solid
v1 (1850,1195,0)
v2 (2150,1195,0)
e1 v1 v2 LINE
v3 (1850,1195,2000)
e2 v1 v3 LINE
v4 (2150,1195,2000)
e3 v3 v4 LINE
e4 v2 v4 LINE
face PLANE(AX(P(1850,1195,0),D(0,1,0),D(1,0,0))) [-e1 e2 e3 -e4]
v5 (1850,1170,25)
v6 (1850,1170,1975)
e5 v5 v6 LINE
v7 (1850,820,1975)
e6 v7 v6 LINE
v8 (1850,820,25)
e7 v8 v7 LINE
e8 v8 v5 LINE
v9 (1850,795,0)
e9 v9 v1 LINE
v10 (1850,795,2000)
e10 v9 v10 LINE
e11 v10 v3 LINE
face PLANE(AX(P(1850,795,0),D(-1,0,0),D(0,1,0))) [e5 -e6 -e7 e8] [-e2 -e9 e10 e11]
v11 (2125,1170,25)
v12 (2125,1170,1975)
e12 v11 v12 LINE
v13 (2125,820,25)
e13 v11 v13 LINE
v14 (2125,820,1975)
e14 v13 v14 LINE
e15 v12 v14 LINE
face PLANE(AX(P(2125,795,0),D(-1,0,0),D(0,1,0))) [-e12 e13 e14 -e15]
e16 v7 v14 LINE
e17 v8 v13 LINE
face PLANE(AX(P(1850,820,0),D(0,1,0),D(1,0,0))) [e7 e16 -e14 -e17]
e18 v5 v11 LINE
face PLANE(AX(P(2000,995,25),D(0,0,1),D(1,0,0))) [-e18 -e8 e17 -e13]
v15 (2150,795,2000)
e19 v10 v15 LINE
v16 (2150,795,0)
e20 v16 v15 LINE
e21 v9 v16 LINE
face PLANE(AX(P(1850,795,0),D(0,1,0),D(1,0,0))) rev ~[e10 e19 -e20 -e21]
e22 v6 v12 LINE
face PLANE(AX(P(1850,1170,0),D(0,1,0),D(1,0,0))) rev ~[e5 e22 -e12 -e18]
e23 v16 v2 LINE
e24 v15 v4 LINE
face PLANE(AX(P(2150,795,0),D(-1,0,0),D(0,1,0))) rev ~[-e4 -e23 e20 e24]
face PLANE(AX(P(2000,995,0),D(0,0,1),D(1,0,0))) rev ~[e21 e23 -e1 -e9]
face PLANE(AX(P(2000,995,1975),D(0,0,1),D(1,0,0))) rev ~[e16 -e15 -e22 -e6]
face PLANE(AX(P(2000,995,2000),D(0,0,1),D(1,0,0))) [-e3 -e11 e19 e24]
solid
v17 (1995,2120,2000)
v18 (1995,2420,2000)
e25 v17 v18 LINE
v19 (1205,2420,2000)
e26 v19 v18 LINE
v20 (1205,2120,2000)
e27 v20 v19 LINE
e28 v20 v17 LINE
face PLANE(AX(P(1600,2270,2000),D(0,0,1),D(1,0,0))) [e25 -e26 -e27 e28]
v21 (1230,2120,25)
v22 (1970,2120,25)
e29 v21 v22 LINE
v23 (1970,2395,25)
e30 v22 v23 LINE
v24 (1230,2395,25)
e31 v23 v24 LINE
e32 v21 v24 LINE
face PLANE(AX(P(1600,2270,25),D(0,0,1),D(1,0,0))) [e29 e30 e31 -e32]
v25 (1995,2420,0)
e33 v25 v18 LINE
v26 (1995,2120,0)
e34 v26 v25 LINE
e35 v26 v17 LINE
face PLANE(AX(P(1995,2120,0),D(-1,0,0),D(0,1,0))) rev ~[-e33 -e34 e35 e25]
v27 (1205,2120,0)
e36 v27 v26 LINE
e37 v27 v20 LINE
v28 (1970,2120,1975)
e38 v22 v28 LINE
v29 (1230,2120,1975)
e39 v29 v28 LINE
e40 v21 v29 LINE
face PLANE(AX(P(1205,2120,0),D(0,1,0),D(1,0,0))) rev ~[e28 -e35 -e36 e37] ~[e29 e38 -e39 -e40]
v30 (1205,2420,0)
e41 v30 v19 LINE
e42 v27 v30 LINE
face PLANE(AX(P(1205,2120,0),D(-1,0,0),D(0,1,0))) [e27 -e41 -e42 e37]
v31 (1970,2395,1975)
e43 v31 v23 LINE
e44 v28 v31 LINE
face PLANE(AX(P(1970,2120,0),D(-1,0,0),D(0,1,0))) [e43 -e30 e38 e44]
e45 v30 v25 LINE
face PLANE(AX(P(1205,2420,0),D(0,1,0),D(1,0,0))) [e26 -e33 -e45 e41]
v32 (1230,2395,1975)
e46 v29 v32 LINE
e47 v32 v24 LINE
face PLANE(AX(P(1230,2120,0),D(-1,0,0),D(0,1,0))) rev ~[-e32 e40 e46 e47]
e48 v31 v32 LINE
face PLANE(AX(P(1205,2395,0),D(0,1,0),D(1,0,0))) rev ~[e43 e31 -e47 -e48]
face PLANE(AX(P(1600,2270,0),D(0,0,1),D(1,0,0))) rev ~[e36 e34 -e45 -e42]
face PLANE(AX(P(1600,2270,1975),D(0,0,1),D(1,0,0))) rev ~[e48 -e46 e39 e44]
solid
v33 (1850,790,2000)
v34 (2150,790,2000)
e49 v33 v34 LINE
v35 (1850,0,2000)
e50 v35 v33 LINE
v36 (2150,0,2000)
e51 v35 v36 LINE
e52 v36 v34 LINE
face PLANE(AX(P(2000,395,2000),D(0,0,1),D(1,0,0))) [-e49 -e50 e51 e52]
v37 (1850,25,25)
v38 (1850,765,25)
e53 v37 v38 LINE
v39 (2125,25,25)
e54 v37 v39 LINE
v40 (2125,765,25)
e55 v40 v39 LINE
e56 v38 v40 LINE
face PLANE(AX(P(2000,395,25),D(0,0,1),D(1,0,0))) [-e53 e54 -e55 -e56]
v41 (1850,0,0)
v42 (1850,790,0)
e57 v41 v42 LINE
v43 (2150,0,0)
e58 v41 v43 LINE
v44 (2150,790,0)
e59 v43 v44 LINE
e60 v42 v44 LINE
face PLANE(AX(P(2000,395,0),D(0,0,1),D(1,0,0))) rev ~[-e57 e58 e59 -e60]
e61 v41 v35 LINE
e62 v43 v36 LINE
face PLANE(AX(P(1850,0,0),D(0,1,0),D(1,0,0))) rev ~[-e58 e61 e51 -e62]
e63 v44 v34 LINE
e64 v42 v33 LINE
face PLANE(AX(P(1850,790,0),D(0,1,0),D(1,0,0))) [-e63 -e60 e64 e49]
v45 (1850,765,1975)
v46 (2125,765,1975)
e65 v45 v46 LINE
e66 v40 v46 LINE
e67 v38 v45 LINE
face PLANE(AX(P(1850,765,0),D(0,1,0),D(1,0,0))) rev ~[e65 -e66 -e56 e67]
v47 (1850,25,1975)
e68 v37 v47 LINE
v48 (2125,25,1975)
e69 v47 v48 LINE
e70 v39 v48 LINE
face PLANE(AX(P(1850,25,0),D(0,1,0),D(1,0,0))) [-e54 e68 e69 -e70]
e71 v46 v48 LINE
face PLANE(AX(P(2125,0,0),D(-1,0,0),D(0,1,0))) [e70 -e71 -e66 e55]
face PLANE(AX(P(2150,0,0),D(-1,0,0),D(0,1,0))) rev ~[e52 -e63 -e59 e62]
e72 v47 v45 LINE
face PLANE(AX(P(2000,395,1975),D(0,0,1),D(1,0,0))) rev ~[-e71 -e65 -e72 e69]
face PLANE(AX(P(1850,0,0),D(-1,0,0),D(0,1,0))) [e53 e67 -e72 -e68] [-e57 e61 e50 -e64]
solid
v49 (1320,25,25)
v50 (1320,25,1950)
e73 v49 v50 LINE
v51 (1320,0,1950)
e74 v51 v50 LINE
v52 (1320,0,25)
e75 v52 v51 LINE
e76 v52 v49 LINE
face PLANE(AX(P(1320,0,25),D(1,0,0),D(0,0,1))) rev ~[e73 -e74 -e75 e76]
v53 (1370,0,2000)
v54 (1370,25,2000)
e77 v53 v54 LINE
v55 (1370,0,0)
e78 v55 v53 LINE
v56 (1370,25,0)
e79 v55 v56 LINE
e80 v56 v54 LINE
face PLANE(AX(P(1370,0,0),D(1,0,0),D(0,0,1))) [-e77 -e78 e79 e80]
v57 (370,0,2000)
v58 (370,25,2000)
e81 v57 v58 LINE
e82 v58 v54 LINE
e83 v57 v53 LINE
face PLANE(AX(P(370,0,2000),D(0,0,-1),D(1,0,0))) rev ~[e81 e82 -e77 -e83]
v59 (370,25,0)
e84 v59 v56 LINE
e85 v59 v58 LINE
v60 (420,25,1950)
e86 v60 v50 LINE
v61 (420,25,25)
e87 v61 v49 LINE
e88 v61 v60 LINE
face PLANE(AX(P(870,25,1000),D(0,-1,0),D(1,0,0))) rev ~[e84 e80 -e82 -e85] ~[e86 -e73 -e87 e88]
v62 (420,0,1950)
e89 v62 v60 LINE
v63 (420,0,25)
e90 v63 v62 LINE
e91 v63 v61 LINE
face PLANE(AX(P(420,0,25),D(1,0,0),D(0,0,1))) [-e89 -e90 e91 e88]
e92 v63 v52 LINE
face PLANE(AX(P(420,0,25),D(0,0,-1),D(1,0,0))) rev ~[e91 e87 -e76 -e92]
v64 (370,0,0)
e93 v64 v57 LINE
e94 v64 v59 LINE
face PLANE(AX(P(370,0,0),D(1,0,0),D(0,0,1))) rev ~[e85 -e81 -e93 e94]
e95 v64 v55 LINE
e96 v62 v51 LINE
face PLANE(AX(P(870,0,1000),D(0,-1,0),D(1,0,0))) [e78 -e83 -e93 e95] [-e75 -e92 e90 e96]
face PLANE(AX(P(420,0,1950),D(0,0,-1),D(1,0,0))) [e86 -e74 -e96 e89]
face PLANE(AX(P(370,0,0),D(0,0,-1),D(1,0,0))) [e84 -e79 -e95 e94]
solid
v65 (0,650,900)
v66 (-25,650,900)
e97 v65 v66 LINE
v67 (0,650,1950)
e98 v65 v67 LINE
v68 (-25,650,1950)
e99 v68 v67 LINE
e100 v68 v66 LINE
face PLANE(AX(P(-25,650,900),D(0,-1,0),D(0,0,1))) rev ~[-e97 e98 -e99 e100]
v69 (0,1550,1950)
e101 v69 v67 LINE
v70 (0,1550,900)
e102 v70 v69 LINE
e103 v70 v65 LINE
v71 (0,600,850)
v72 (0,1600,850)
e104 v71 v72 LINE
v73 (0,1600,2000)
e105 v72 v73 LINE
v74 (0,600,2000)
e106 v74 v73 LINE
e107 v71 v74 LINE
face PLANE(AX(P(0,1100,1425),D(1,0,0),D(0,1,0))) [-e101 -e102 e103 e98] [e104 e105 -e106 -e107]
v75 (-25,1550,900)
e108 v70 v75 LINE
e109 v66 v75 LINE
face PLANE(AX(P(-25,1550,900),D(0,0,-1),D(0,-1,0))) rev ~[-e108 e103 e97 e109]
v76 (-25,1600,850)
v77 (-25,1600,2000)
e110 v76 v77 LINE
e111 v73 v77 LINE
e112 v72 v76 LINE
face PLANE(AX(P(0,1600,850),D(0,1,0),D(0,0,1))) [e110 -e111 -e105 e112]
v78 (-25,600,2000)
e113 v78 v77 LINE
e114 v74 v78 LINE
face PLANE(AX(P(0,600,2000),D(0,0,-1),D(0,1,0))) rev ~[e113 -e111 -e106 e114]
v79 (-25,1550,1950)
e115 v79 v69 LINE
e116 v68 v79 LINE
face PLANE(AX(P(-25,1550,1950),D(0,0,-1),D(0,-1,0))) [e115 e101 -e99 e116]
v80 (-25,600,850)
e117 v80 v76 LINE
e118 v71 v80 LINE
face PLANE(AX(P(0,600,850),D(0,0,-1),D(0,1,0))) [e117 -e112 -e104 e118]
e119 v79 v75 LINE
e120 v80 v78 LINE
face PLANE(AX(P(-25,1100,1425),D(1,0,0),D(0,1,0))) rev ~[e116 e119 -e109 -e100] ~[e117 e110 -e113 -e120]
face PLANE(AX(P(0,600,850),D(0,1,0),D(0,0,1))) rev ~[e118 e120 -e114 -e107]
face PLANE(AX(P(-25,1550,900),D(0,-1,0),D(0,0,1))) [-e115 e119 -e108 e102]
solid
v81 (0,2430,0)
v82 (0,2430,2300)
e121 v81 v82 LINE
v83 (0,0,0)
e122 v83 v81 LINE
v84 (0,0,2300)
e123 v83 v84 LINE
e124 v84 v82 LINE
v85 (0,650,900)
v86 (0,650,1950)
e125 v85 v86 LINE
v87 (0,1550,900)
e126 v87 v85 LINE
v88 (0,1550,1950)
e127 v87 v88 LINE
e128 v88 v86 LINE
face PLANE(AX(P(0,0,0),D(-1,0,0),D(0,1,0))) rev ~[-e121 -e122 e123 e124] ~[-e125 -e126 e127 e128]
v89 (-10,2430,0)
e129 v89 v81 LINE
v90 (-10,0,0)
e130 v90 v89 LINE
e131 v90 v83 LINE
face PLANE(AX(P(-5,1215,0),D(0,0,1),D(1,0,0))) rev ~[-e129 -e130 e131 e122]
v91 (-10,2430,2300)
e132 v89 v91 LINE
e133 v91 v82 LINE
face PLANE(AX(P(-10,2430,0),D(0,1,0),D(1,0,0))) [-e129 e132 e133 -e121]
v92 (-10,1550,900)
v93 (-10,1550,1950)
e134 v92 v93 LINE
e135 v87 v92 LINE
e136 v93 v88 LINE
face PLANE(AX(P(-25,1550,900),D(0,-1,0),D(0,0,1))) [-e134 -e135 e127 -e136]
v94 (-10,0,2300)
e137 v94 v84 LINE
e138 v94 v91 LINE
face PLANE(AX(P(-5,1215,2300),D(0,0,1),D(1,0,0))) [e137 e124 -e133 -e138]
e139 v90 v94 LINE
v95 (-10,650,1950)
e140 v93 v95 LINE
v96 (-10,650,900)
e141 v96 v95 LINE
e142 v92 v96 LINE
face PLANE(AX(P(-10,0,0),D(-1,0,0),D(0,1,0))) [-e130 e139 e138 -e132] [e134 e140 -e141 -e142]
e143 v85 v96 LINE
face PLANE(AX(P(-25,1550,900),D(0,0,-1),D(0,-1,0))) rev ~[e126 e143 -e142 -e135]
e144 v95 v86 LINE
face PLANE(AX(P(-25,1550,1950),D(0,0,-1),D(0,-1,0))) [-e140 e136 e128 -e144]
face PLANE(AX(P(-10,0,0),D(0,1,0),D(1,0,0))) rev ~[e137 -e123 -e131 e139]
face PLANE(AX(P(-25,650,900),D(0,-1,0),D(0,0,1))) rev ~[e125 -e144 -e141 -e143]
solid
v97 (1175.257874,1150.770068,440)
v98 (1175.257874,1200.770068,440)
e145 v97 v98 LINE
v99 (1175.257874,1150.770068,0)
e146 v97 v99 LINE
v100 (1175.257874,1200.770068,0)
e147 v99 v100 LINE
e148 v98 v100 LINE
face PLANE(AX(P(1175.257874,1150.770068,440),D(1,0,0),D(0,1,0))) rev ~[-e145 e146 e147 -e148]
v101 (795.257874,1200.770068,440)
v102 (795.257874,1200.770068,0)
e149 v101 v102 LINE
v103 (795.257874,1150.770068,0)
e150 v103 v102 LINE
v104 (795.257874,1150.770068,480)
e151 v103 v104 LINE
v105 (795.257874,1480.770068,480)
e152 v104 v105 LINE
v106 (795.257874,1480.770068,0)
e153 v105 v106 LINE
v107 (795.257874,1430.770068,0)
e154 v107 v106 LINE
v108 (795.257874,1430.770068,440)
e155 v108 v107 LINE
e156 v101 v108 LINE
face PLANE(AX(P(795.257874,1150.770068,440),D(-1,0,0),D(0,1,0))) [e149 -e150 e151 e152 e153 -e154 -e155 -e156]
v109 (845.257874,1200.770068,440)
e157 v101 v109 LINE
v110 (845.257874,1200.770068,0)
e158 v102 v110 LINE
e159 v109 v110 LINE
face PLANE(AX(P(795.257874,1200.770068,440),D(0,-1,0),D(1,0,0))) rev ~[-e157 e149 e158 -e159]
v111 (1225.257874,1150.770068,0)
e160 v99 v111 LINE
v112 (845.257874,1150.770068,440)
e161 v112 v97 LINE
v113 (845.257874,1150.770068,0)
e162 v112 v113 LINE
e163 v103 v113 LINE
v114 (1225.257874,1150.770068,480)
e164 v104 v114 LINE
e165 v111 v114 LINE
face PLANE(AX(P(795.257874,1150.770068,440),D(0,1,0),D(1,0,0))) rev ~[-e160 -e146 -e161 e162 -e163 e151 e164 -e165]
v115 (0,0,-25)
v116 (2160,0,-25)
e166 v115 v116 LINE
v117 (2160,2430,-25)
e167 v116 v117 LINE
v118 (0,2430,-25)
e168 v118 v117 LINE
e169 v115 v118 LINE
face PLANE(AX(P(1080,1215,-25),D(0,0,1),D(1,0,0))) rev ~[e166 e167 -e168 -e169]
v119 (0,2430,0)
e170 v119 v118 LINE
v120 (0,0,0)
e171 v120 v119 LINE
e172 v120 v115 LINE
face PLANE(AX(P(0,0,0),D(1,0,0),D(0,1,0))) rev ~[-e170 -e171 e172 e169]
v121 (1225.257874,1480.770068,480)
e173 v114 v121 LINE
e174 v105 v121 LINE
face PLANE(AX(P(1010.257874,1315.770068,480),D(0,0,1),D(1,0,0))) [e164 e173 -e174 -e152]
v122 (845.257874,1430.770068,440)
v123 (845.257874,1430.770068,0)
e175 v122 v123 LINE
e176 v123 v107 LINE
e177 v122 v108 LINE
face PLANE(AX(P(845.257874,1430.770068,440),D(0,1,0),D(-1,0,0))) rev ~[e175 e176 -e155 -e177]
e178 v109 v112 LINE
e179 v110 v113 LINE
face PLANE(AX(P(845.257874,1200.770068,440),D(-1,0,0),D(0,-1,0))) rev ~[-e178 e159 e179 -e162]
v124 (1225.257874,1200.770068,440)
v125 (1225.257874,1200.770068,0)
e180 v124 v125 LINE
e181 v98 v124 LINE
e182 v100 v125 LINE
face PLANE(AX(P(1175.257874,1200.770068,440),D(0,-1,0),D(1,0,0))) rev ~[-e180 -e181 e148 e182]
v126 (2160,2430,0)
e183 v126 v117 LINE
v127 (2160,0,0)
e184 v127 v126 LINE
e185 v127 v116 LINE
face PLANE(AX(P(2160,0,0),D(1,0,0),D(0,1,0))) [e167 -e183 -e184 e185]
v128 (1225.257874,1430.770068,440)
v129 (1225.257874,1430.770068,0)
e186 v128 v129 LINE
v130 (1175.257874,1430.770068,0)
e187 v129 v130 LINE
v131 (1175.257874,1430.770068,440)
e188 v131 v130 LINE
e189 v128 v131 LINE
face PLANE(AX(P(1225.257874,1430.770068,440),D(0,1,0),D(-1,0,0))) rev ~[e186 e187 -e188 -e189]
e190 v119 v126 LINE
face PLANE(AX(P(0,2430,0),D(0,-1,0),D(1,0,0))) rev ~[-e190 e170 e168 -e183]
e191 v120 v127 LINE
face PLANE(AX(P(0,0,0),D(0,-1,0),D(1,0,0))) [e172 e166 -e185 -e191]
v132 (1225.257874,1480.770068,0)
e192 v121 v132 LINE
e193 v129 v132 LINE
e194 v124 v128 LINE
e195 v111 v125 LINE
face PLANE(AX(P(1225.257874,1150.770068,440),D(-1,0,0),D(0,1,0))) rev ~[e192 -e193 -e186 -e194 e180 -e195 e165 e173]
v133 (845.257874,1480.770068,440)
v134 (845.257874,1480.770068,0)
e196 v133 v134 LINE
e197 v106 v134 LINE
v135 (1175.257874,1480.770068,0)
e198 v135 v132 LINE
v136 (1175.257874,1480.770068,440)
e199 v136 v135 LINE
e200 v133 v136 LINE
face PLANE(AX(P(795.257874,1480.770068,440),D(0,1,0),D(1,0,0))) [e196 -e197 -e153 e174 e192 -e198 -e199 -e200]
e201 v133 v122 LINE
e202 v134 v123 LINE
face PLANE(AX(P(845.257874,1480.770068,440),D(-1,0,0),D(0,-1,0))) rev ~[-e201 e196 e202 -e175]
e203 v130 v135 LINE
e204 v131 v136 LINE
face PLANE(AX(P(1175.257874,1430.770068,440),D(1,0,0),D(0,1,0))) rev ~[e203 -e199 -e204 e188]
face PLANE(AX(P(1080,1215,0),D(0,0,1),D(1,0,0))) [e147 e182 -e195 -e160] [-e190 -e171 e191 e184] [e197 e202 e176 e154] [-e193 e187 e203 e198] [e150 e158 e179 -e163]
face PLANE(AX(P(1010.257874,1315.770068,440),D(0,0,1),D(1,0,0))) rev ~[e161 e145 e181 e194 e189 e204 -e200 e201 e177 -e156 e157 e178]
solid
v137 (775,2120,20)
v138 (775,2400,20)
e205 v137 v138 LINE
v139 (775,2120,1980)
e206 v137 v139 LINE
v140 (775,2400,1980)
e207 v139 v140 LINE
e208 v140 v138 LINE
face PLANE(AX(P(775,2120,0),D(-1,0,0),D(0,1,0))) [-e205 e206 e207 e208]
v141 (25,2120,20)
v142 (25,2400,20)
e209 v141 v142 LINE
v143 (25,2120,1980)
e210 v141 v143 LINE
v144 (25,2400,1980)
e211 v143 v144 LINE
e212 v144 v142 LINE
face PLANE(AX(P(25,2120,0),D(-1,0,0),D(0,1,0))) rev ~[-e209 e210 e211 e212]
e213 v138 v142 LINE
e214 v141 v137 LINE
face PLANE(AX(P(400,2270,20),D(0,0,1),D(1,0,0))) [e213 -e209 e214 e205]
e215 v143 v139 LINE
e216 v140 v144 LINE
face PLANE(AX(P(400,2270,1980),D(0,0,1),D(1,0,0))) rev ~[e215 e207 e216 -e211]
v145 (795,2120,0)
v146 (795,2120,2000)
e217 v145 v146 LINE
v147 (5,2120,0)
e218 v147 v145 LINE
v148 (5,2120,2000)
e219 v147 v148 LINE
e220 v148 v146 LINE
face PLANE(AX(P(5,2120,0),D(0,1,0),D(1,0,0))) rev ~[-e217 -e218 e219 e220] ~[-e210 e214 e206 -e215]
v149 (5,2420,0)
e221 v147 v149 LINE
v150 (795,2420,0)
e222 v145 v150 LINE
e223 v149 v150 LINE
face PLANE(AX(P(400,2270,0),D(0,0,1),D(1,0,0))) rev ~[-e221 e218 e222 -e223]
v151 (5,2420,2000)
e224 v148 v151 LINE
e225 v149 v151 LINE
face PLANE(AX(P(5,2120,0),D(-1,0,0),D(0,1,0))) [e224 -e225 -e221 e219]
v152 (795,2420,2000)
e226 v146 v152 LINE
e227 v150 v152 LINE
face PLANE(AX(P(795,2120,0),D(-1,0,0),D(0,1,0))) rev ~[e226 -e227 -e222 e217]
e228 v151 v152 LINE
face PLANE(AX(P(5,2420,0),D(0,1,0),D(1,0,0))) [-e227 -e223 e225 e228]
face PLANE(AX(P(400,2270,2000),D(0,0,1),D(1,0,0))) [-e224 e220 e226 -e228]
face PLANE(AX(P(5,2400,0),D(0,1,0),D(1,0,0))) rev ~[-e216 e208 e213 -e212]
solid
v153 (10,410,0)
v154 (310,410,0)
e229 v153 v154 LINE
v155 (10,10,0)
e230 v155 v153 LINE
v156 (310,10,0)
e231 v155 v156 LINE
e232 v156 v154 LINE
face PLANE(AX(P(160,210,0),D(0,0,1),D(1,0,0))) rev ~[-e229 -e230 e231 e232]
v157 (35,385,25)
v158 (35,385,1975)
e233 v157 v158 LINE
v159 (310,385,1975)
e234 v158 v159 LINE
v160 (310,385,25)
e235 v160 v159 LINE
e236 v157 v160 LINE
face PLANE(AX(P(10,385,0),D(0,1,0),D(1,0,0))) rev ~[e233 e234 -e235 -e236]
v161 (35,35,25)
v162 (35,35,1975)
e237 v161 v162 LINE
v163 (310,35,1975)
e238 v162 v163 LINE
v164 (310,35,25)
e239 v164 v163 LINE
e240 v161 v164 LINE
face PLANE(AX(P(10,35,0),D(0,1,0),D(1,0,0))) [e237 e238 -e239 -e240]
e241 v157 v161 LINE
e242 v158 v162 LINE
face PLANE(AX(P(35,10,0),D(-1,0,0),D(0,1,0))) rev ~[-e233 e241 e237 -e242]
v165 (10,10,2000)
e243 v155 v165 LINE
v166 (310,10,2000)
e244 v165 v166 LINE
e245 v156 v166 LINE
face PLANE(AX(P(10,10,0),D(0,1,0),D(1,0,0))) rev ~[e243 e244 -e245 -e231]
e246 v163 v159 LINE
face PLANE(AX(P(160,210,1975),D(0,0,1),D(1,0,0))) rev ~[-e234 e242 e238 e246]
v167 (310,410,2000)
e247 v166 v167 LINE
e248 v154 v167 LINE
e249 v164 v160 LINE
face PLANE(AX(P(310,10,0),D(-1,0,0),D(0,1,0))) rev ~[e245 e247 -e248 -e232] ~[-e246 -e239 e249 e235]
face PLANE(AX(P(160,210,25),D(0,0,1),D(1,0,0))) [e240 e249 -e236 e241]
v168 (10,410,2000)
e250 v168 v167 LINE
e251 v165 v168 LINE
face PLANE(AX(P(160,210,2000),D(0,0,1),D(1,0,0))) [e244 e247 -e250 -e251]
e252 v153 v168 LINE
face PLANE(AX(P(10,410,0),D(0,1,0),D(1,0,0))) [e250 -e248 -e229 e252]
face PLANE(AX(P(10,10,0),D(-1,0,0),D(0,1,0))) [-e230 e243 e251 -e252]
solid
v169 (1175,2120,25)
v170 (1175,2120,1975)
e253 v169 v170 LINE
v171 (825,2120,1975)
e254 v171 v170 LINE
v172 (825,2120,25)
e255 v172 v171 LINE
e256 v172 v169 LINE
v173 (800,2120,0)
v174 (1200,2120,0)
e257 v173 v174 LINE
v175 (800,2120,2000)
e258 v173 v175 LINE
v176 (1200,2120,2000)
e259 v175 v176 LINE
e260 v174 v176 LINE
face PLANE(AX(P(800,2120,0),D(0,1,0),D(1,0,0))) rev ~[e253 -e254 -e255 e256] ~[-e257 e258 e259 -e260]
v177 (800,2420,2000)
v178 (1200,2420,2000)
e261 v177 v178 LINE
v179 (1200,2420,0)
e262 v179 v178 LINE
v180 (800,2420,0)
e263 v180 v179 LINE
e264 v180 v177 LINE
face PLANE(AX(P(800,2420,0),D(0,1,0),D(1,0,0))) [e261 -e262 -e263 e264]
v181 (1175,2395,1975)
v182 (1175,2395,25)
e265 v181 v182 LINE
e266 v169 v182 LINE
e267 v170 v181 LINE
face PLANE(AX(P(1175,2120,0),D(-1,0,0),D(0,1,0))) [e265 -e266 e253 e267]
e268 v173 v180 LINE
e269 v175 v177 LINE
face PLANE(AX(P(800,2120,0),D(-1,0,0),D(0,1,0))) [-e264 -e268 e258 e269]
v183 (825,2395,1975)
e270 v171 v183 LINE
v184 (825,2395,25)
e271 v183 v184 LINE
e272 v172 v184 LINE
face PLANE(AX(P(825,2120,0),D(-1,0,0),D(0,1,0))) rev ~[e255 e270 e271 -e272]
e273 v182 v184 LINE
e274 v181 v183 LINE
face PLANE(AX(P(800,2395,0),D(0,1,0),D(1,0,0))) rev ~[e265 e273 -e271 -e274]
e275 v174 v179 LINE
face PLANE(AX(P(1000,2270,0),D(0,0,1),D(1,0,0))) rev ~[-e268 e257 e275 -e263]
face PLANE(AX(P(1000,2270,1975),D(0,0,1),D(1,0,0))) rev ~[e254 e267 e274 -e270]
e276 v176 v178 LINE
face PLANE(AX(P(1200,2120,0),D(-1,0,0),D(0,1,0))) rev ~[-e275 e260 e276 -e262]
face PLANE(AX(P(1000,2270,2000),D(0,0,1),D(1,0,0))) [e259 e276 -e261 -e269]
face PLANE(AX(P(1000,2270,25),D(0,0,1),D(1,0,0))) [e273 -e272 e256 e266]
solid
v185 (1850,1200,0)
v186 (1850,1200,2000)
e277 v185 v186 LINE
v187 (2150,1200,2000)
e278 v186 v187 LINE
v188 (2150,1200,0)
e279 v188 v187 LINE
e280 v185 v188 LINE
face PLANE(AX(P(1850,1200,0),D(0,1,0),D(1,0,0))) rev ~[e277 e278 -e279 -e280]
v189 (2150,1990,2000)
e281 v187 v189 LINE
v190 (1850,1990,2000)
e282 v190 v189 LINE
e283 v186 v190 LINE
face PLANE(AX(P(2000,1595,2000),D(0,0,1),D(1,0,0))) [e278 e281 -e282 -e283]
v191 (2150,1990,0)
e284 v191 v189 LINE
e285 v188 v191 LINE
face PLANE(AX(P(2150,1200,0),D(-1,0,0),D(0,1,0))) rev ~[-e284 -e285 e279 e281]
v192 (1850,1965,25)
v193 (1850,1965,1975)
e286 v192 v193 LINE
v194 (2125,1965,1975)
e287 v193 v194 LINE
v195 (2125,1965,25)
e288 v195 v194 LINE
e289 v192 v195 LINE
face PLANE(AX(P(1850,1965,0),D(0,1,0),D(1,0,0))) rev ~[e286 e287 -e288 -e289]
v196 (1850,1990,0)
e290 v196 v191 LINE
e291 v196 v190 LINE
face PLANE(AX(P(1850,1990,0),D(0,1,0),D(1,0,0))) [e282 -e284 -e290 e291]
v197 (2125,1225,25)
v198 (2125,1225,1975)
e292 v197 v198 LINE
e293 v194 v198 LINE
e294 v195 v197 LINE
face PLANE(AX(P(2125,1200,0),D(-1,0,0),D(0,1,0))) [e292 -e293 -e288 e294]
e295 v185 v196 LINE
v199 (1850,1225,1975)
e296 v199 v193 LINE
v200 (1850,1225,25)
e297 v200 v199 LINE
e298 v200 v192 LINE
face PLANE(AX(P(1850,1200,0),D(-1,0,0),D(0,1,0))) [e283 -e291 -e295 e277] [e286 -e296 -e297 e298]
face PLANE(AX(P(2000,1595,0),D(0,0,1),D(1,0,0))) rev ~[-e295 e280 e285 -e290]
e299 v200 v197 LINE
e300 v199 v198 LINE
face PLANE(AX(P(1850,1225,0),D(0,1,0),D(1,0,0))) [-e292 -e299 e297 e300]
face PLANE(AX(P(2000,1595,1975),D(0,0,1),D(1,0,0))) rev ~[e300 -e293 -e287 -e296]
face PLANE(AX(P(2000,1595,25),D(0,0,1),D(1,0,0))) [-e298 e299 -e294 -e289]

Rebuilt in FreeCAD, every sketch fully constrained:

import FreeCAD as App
import Part
import Sketcher

V = App.Vector
Q = App.Units.Quantity


def faces_at(feature, points):
    """Names of the faces that lie closest to the given points."""
    faces = feature.Shape.Faces
    near = lambda p: min(range(len(faces)), key=lambda i: faces[i].distToShape(Part.Vertex(*p))[0])
    return sorted({f"Face{near(p) + 1}" for p in points})

doc = App.newDocument("Part")
body = doc.addObject("PartDesign::Body", "Body")

# Sketch on XY plane
sketch1 = body.newObject("Sketcher::SketchObject", "Sketch")
sketch1.AttachmentSupport = (doc.getObject("XY_Plane"), [""])
sketch1.MapMode = "FlatFace"
sketch1.addGeometry([
    Part.LineSegment(V(5, 2420, 0), V(5, 2120, 0)),
    Part.LineSegment(V(5, 2120, 0), V(795, 2120, 0)),
    Part.LineSegment(V(795, 2120, 0), V(795, 2420, 0)),
    Part.LineSegment(V(795, 2420, 0), V(5, 2420, 0)),
], False)
sketch1.addConstraint([
    Sketcher.Constraint("Coincident", 0, 2, 1, 1),
    Sketcher.Constraint("Coincident", 1, 2, 2, 1),
    Sketcher.Constraint("Coincident", 2, 2, 3, 1),
    Sketcher.Constraint("Coincident", 3, 2, 0, 1),
    Sketcher.Constraint("Vertical", 0),
    Sketcher.Constraint("Horizontal", 1),
    Sketcher.Constraint("Vertical", 2),
    Sketcher.Constraint("Horizontal", 3),
    Sketcher.Constraint("DistanceX", 1, 1, 1, 2, Q("790 mm")),
    Sketcher.Constraint("DistanceY", 0, 2, 0, 1, Q("300 mm")),
    Sketcher.Constraint("DistanceX", -1, 1, 0, 2, Q("5 mm")),
    Sketcher.Constraint("DistanceY", -1, 1, 0, 2, Q("2120 mm")),
])
pad1 = body.newObject("PartDesign::Pad", "Pad")
pad1.Profile = sketch1
pad1.Length = 2000
doc.recompute()

thickness = body.newObject("PartDesign::Thickness", "Thickness")
thickness.Base = (pad1, faces_at(pad1, [(400, 2120, 1000)]))
thickness.Value = 20
thickness.Reversed = True
thickness.Join = "Arc"
body2 = doc.addObject("PartDesign::Body", "Body001")

# Sketch on XY plane
sketch2 = body2.newObject("Sketcher::SketchObject", "Sketch001")
sketch2.AttachmentSupport = (doc.getObject("XY_Plane001"), [""])
sketch2.MapMode = "FlatFace"
sketch2.addGeometry([
    Part.LineSegment(V(800, 2420, 0), V(800, 2120, 0)),
    Part.LineSegment(V(800, 2120, 0), V(1200, 2120, 0)),
    Part.LineSegment(V(1200, 2120, 0), V(1200, 2420, 0)),
    Part.LineSegment(V(1200, 2420, 0), V(800, 2420, 0)),
], False)
sketch2.addConstraint([
    Sketcher.Constraint("Coincident", 0, 2, 1, 1),
    Sketcher.Constraint("Coincident", 1, 2, 2, 1),
    Sketcher.Constraint("Coincident", 2, 2, 3, 1),
    Sketcher.Constraint("Coincident", 3, 2, 0, 1),
    Sketcher.Constraint("Vertical", 0),
    Sketcher.Constraint("Horizontal", 1),
    Sketcher.Constraint("Vertical", 2),
    Sketcher.Constraint("Horizontal", 3),
    Sketcher.Constraint("DistanceX", 1, 1, 1, 2, Q("400 mm")),
    Sketcher.Constraint("DistanceY", 0, 2, 0, 1, Q("300 mm")),
    Sketcher.Constraint("DistanceX", -1, 1, 0, 2, Q("800 mm")),
    Sketcher.Constraint("DistanceY", -1, 1, 0, 2, Q("2120 mm")),
])
pad2 = body2.newObject("PartDesign::Pad", "Pad001")
pad2.Profile = sketch2
pad2.Length = 2000
doc.recompute()

thickness2 = body2.newObject("PartDesign::Thickness", "Thickness001")
thickness2.Base = (pad2, faces_at(pad2, [(1000, 2120, 1000)]))
thickness2.Value = 25
thickness2.Reversed = True
thickness2.Join = "Arc"
body3 = doc.addObject("PartDesign::Body", "Body002")

# Sketch on XY plane
sketch3 = body3.newObject("Sketcher::SketchObject", "Sketch002")
sketch3.AttachmentSupport = (doc.getObject("XY_Plane002"), [""])
sketch3.MapMode = "FlatFace"
sketch3.addGeometry([
    Part.LineSegment(V(1850, 1990, 0), V(1850, 1200, 0)),
    Part.LineSegment(V(1850, 1200, 0), V(2150, 1200, 0)),
    Part.LineSegment(V(2150, 1200, 0), V(2150, 1990, 0)),
    Part.LineSegment(V(2150, 1990, 0), V(1850, 1990, 0)),
], False)
sketch3.addConstraint([
    Sketcher.Constraint("Coincident", 0, 2, 1, 1),
    Sketcher.Constraint("Coincident", 1, 2, 2, 1),
    Sketcher.Constraint("Coincident", 2, 2, 3, 1),
    Sketcher.Constraint("Coincident", 3, 2, 0, 1),
    Sketcher.Constraint("Vertical", 0),
    Sketcher.Constraint("Horizontal", 1),
    Sketcher.Constraint("Vertical", 2),
    Sketcher.Constraint("Horizontal", 3),
    Sketcher.Constraint("DistanceX", 1, 1, 1, 2, Q("300 mm")),
    Sketcher.Constraint("DistanceY", 0, 2, 0, 1, Q("790 mm")),
    Sketcher.Constraint("DistanceX", -1, 1, 0, 2, Q("1850 mm")),
    Sketcher.Constraint("DistanceY", -1, 1, 0, 2, Q("1200 mm")),
])
pad3 = body3.newObject("PartDesign::Pad", "Pad002")
pad3.Profile = sketch3
pad3.Length = 2000
doc.recompute()

thickness3 = body3.newObject("PartDesign::Thickness", "Thickness002")
thickness3.Base = (pad3, faces_at(pad3, [(1850, 1595, 1000)]))
thickness3.Value = 25
thickness3.Reversed = True
thickness3.Join = "Arc"
body4 = doc.addObject("PartDesign::Body", "Body003")

# Sketch on XY plane
sketch4 = body4.newObject("Sketcher::SketchObject", "Sketch003")
sketch4.AttachmentSupport = (doc.getObject("XY_Plane003"), [""])
sketch4.MapMode = "FlatFace"
sketch4.addGeometry([
    Part.LineSegment(V(1850, 1195, 0), V(1850, 795, 0)),
    Part.LineSegment(V(1850, 795, 0), V(2150, 795, 0)),
    Part.LineSegment(V(2150, 795, 0), V(2150, 1195, 0)),
    Part.LineSegment(V(2150, 1195, 0), V(1850, 1195, 0)),
], False)
sketch4.addConstraint([
    Sketcher.Constraint("Coincident", 0, 2, 1, 1),
    Sketcher.Constraint("Coincident", 1, 2, 2, 1),
    Sketcher.Constraint("Coincident", 2, 2, 3, 1),
    Sketcher.Constraint("Coincident", 3, 2, 0, 1),
    Sketcher.Constraint("Vertical", 0),
    Sketcher.Constraint("Horizontal", 1),
    Sketcher.Constraint("Vertical", 2),
    Sketcher.Constraint("Horizontal", 3),
    Sketcher.Constraint("DistanceX", 1, 1, 1, 2, Q("300 mm")),
    Sketcher.Constraint("DistanceY", 0, 2, 0, 1, Q("400 mm")),
    Sketcher.Constraint("DistanceX", -1, 1, 0, 2, Q("1850 mm")),
    Sketcher.Constraint("DistanceY", -1, 1, 0, 2, Q("795 mm")),
])
pad4 = body4.newObject("PartDesign::Pad", "Pad003")
pad4.Profile = sketch4
pad4.Length = 2000
doc.recompute()

thickness4 = body4.newObject("PartDesign::Thickness", "Thickness003")
thickness4.Base = (pad4, faces_at(pad4, [(1850, 995, 1000)]))
thickness4.Value = 25
thickness4.Reversed = True
thickness4.Join = "Arc"
body5 = doc.addObject("PartDesign::Body", "Body004")

# Sketch on XY plane
sketch5 = body5.newObject("Sketcher::SketchObject", "Sketch004")
sketch5.AttachmentSupport = (doc.getObject("XY_Plane004"), [""])
sketch5.MapMode = "FlatFace"
sketch5.addGeometry([
    Part.LineSegment(V(1850, 790, 0), V(1850, 0, 0)),
    Part.LineSegment(V(1850, 0, 0), V(2150, 0, 0)),
    Part.LineSegment(V(2150, 0, 0), V(2150, 790, 0)),
    Part.LineSegment(V(2150, 790, 0), V(1850, 790, 0)),
], False)
sketch5.addConstraint([
    Sketcher.Constraint("Coincident", 0, 2, 1, 1),
    Sketcher.Constraint("Coincident", 1, 2, 2, 1),
    Sketcher.Constraint("Coincident", 2, 2, 3, 1),
    Sketcher.Constraint("Coincident", 3, 2, 0, 1),
    Sketcher.Constraint("Vertical", 0),
    Sketcher.Constraint("Horizontal", 1),
    Sketcher.Constraint("Vertical", 2),
    Sketcher.Constraint("Horizontal", 3),
    Sketcher.Constraint("PointOnObject", 0, 2, -1),
    Sketcher.Constraint("DistanceX", 1, 1, 1, 2, Q("300 mm")),
    Sketcher.Constraint("DistanceY", 0, 2, 0, 1, Q("790 mm")),
    Sketcher.Constraint("DistanceX", -1, 1, 0, 2, Q("1850 mm")),
])
pad5 = body5.newObject("PartDesign::Pad", "Pad004")
pad5.Profile = sketch5
pad5.Length = 2000
doc.recompute()

thickness5 = body5.newObject("PartDesign::Thickness", "Thickness004")
thickness5.Base = (pad5, faces_at(pad5, [(1850, 395, 1000)]))
thickness5.Value = 25
thickness5.Reversed = True
thickness5.Join = "Arc"
body6 = doc.addObject("PartDesign::Body", "Body005")

# Sketch on XY plane
sketch6 = body6.newObject("Sketcher::SketchObject", "Sketch005")
sketch6.AttachmentSupport = (doc.getObject("XY_Plane005"), [""])
sketch6.MapMode = "FlatFace"
sketch6.addGeometry([
    Part.LineSegment(V(10, 410, 0), V(10, 10, 0)),
    Part.LineSegment(V(10, 10, 0), V(310, 10, 0)),
    Part.LineSegment(V(310, 10, 0), V(310, 410, 0)),
    Part.LineSegment(V(310, 410, 0), V(10, 410, 0)),
], False)
sketch6.addConstraint([
    Sketcher.Constraint("Coincident", 0, 2, 1, 1),
    Sketcher.Constraint("Coincident", 1, 2, 2, 1),
    Sketcher.Constraint("Coincident", 2, 2, 3, 1),
    Sketcher.Constraint("Coincident", 3, 2, 0, 1),
    Sketcher.Constraint("Vertical", 0),
    Sketcher.Constraint("Horizontal", 1),
    Sketcher.Constraint("Vertical", 2),
    Sketcher.Constraint("Horizontal", 3),
    Sketcher.Constraint("DistanceX", 1, 1, 1, 2, Q("300 mm")),
    Sketcher.Constraint("DistanceY", 0, 2, 0, 1, Q("400 mm")),
    Sketcher.Constraint("DistanceX", -1, 1, 0, 2, Q("10 mm")),
    Sketcher.Constraint("DistanceY", -1, 1, 0, 2, Q("10 mm")),
])
pad6 = body6.newObject("PartDesign::Pad", "Pad005")
pad6.Profile = sketch6
pad6.Length = 2000
doc.recompute()

thickness6 = body6.newObject("PartDesign::Thickness", "Thickness005")
thickness6.Base = (pad6, faces_at(pad6, [(310, 210, 1000)]))
thickness6.Value = 25
thickness6.Reversed = True
thickness6.Join = "Arc"
body7 = doc.addObject("PartDesign::Body", "Body006")

# Sketch on XY plane
sketch7 = body7.newObject("Sketcher::SketchObject", "Sketch006")
sketch7.AttachmentSupport = (doc.getObject("XY_Plane006"), [""])
sketch7.MapMode = "FlatFace"
sketch7.addGeometry([
    Part.LineSegment(V(-10, 2430, 0), V(-10, 0, 0)),
    Part.LineSegment(V(-10, 0, 0), V(0, 0, 0)),
    Part.LineSegment(V(0, 0, 0), V(0, 2430, 0)),
    Part.LineSegment(V(0, 2430, 0), V(-10, 2430, 0)),
], False)
sketch7.addConstraint([
    Sketcher.Constraint("Coincident", 0, 2, 1, 1),
    Sketcher.Constraint("Coincident", 1, 2, 2, 1),
    Sketcher.Constraint("Coincident", 2, 2, 3, 1),
    Sketcher.Constraint("Coincident", 3, 2, 0, 1),
    Sketcher.Constraint("Vertical", 0),
    Sketcher.Constraint("Horizontal", 1),
    Sketcher.Constraint("Vertical", 2),
    Sketcher.Constraint("Horizontal", 3),
    Sketcher.Constraint("Coincident", 1, 2, -1, 1),
    Sketcher.Constraint("DistanceX", 1, 1, 1, 2, Q("10 mm")),
    Sketcher.Constraint("DistanceY", 0, 2, 0, 1, Q("2430 mm")),
])
pad7 = body7.newObject("PartDesign::Pad", "Pad006")
pad7.Profile = sketch7
pad7.Length = 2300
body8 = doc.addObject("PartDesign::Body", "Body007")

# Sketch on XZ plane
sketch8 = body8.newObject("Sketcher::SketchObject", "Sketch007")
sketch8.AttachmentSupport = (doc.getObject("XZ_Plane007"), [""])
sketch8.MapMode = "FlatFace"
sketch8.addGeometry([
    Part.LineSegment(V(370, 2000, 0), V(370, 0, 0)),
    Part.LineSegment(V(370, 0, 0), V(1370, 0, 0)),
    Part.LineSegment(V(1370, 0, 0), V(1370, 2000, 0)),
    Part.LineSegment(V(1370, 2000, 0), V(370, 2000, 0)),
], False)
sketch8.addConstraint([
    Sketcher.Constraint("Coincident", 0, 2, 1, 1),
    Sketcher.Constraint("Coincident", 1, 2, 2, 1),
    Sketcher.Constraint("Coincident", 2, 2, 3, 1),
    Sketcher.Constraint("Coincident", 3, 2, 0, 1),
    Sketcher.Constraint("Vertical", 0),
    Sketcher.Constraint("Horizontal", 1),
    Sketcher.Constraint("Vertical", 2),
    Sketcher.Constraint("Horizontal", 3),
    Sketcher.Constraint("PointOnObject", 0, 2, -1),
    Sketcher.Constraint("DistanceX", 1, 1, 1, 2, Q("1000 mm")),
    Sketcher.Constraint("DistanceY", 0, 2, 0, 1, Q("2000 mm")),
    Sketcher.Constraint("DistanceX", -1, 1, 0, 2, Q("370 mm")),
])
pad8 = body8.newObject("PartDesign::Pad", "Pad007")
pad8.Profile = sketch8
pad8.Length = 25
pad8.Reversed = True

# Sketch on XZ plane
sketch9 = body8.newObject("Sketcher::SketchObject", "Sketch008")
sketch9.AttachmentSupport = (doc.getObject("XZ_Plane007"), [""])
sketch9.MapMode = "FlatFace"
sketch9.addGeometry([
    Part.LineSegment(V(420, 1950, 0), V(420, 25, 0)),
    Part.LineSegment(V(420, 25, 0), V(1320, 25, 0)),
    Part.LineSegment(V(1320, 25, 0), V(1320, 1950, 0)),
    Part.LineSegment(V(1320, 1950, 0), V(420, 1950, 0)),
], False)
sketch9.addConstraint([
    Sketcher.Constraint("Coincident", 0, 2, 1, 1),
    Sketcher.Constraint("Coincident", 1, 2, 2, 1),
    Sketcher.Constraint("Coincident", 2, 2, 3, 1),
    Sketcher.Constraint("Coincident", 3, 2, 0, 1),
    Sketcher.Constraint("Vertical", 0),
    Sketcher.Constraint("Horizontal", 1),
    Sketcher.Constraint("Vertical", 2),
    Sketcher.Constraint("Horizontal", 3),
    Sketcher.Constraint("DistanceX", 1, 1, 1, 2, Q("900 mm")),
    Sketcher.Constraint("DistanceY", 0, 2, 0, 1, Q("1925 mm")),
    Sketcher.Constraint("DistanceX", -1, 1, 0, 2, Q("420 mm")),
    Sketcher.Constraint("DistanceY", -1, 1, 0, 2, Q("25 mm")),
])
pocket1 = body8.newObject("PartDesign::Pocket", "Pocket")
pocket1.Profile = sketch9
pocket1.Length = 25
body9 = doc.addObject("PartDesign::Body", "Body008")

# Sketch on YZ plane
sketch10 = body9.newObject("Sketcher::SketchObject", "Sketch009")
sketch10.AttachmentSupport = (doc.getObject("YZ_Plane008"), [""])
sketch10.MapMode = "FlatFace"
sketch10.addGeometry([
    Part.LineSegment(V(600, 2000, 0), V(600, 850, 0)),
    Part.LineSegment(V(600, 850, 0), V(1600, 850, 0)),
    Part.LineSegment(V(1600, 850, 0), V(1600, 2000, 0)),
    Part.LineSegment(V(1600, 2000, 0), V(600, 2000, 0)),
], False)
sketch10.addConstraint([
    Sketcher.Constraint("Coincident", 0, 2, 1, 1),
    Sketcher.Constraint("Coincident", 1, 2, 2, 1),
    Sketcher.Constraint("Coincident", 2, 2, 3, 1),
    Sketcher.Constraint("Coincident", 3, 2, 0, 1),
    Sketcher.Constraint("Vertical", 0),
    Sketcher.Constraint("Horizontal", 1),
    Sketcher.Constraint("Vertical", 2),
    Sketcher.Constraint("Horizontal", 3),
    Sketcher.Constraint("DistanceX", 1, 1, 1, 2, Q("1000 mm")),
    Sketcher.Constraint("DistanceY", 0, 2, 0, 1, Q("1150 mm")),
    Sketcher.Constraint("DistanceX", -1, 1, 0, 2, Q("600 mm")),
    Sketcher.Constraint("DistanceY", -1, 1, 0, 2, Q("850 mm")),
])
pad9 = body9.newObject("PartDesign::Pad", "Pad008")
pad9.Profile = sketch10
pad9.Length = 25
pad9.Reversed = True
body10 = doc.addObject("PartDesign::Body", "Body009")

# Sketch on YZ plane
sketch11 = body10.newObject("Sketcher::SketchObject", "Sketch010")
sketch11.AttachmentSupport = (doc.getObject("YZ_Plane009"), [""])
sketch11.MapMode = "FlatFace"
sketch11.AttachmentOffset = App.Placement(V(0, 0, -25), App.Rotation())
sketch11.addGeometry([
    Part.LineSegment(V(1550, 1950, 0), V(1550, 900, 0)),
    Part.LineSegment(V(1550, 900, 0), V(650, 900, 0)),
    Part.LineSegment(V(650, 900, 0), V(650, 1950, 0)),
    Part.LineSegment(V(650, 1950, 0), V(1550, 1950, 0)),
], False)
sketch11.addConstraint([
    Sketcher.Constraint("Coincident", 0, 2, 1, 1),
    Sketcher.Constraint("Coincident", 1, 2, 2, 1),
    Sketcher.Constraint("Coincident", 2, 2, 3, 1),
    Sketcher.Constraint("Coincident", 3, 2, 0, 1),
    Sketcher.Constraint("Vertical", 0),
    Sketcher.Constraint("Horizontal", 1),
    Sketcher.Constraint("Vertical", 2),
    Sketcher.Constraint("Horizontal", 3),
    Sketcher.Constraint("DistanceX", 1, 2, 1, 1, Q("900 mm")),
    Sketcher.Constraint("DistanceY", 0, 2, 0, 1, Q("1050 mm")),
    Sketcher.Constraint("DistanceX", -1, 1, 0, 2, Q("1550 mm")),
    Sketcher.Constraint("DistanceY", -1, 1, 0, 2, Q("900 mm")),
])
pad10 = body10.newObject("PartDesign::Pad", "Pad009")
pad10.Profile = sketch11
pad10.Length = 50
pad10.Midplane = True
doc.recompute()

body11 = doc.addObject("PartDesign::Body", "Body010")
body11.BaseFeature = body10
boolean = body7.newObject("PartDesign::Boolean", "Boolean")
boolean.Type = "Cut"
boolean.addObjects([body11])
doc.recompute()

boolean2 = body9.newObject("PartDesign::Boolean", "Boolean001")
boolean2.Type = "Cut"
boolean2.addObjects([body10])
body12 = doc.addObject("PartDesign::Body", "Body011")

# Sketch on XY plane
sketch12 = body12.newObject("Sketcher::SketchObject", "Sketch011")
sketch12.AttachmentSupport = (doc.getObject("XY_Plane011"), [""])
sketch12.MapMode = "FlatFace"
sketch12.addGeometry([
    Part.LineSegment(V(1205, 2420, 0), V(1205, 2120, 0)),
    Part.LineSegment(V(1205, 2120, 0), V(1995, 2120, 0)),
    Part.LineSegment(V(1995, 2120, 0), V(1995, 2420, 0)),
    Part.LineSegment(V(1995, 2420, 0), V(1205, 2420, 0)),
], False)
sketch12.addConstraint([
    Sketcher.Constraint("Coincident", 0, 2, 1, 1),
    Sketcher.Constraint("Coincident", 1, 2, 2, 1),
    Sketcher.Constraint("Coincident", 2, 2, 3, 1),
    Sketcher.Constraint("Coincident", 3, 2, 0, 1),
    Sketcher.Constraint("Vertical", 0),
    Sketcher.Constraint("Horizontal", 1),
    Sketcher.Constraint("Vertical", 2),
    Sketcher.Constraint("Horizontal", 3),
    Sketcher.Constraint("DistanceX", 1, 1, 1, 2, Q("790 mm")),
    Sketcher.Constraint("DistanceY", 0, 2, 0, 1, Q("300 mm")),
    Sketcher.Constraint("DistanceX", -1, 1, 0, 2, Q("1205 mm")),
    Sketcher.Constraint("DistanceY", -1, 1, 0, 2, Q("2120 mm")),
])
pad11 = body12.newObject("PartDesign::Pad", "Pad010")
pad11.Profile = sketch12
pad11.Length = 2000
doc.recompute()

thickness7 = body12.newObject("PartDesign::Thickness", "Thickness006")
thickness7.Base = (pad11, faces_at(pad11, [(1600, 2120, 1000)]))
thickness7.Value = 25
thickness7.Reversed = True
thickness7.Join = "Arc"
body13 = doc.addObject("PartDesign::Body", "Body012")

# Sketch on XY plane
sketch13 = body13.newObject("Sketcher::SketchObject", "Sketch012")
sketch13.AttachmentSupport = (doc.getObject("XY_Plane012"), [""])
sketch13.MapMode = "FlatFace"
sketch13.addGeometry([
    Part.LineSegment(V(0, 2430, 0), V(0, 0, 0)),
    Part.LineSegment(V(0, 0, 0), V(2160, 0, 0)),
    Part.LineSegment(V(2160, 0, 0), V(2160, 2430, 0)),
    Part.LineSegment(V(2160, 2430, 0), V(0, 2430, 0)),
], False)
sketch13.addConstraint([
    Sketcher.Constraint("Coincident", 0, 2, 1, 1),
    Sketcher.Constraint("Coincident", 1, 2, 2, 1),
    Sketcher.Constraint("Coincident", 2, 2, 3, 1),
    Sketcher.Constraint("Coincident", 3, 2, 0, 1),
    Sketcher.Constraint("Vertical", 0),
    Sketcher.Constraint("Horizontal", 1),
    Sketcher.Constraint("Vertical", 2),
    Sketcher.Constraint("Horizontal", 3),
    Sketcher.Constraint("Coincident", 0, 2, -1, 1),
    Sketcher.Constraint("DistanceX", 1, 1, 1, 2, Q("2160 mm")),
    Sketcher.Constraint("DistanceY", 0, 2, 0, 1, Q("2430 mm")),
])
pad12 = body13.newObject("PartDesign::Pad", "Pad011")
pad12.Profile = sketch13
pad12.Length = 25
pad12.Reversed = True

# Sketch on XY plane
sketch14 = body13.newObject("Sketcher::SketchObject", "Sketch013")
sketch14.AttachmentSupport = (doc.getObject("XY_Plane012"), [""])
sketch14.MapMode = "FlatFace"
sketch14.addGeometry([
    Part.LineSegment(V(795, 1481, 0), V(795, 1151, 0)),
    Part.LineSegment(V(795, 1151, 0), V(1225, 1151, 0)),
    Part.LineSegment(V(1225, 1151, 0), V(1225, 1481, 0)),
    Part.LineSegment(V(1225, 1481, 0), V(795, 1481, 0)),
], False)
sketch14.addConstraint([
    Sketcher.Constraint("Coincident", 0, 2, 1, 1),
    Sketcher.Constraint("Coincident", 1, 2, 2, 1),
    Sketcher.Constraint("Coincident", 2, 2, 3, 1),
    Sketcher.Constraint("Coincident", 3, 2, 0, 1),
    Sketcher.Constraint("Vertical", 0),
    Sketcher.Constraint("Horizontal", 1),
    Sketcher.Constraint("Vertical", 2),
    Sketcher.Constraint("Horizontal", 3),
    Sketcher.Constraint("DistanceX", 1, 1, 1, 2, Q("430 mm")),
    Sketcher.Constraint("DistanceY", 0, 2, 0, 1, Q("330 mm")),
    Sketcher.Constraint("DistanceY", -1, 1, 0, 2, Q("1150.770068 mm")),
    Sketcher.Constraint("DistanceX", -1, 1, 0, 2, Q("795.257874 mm")),
])
pad13 = body13.newObject("PartDesign::Pad", "Pad012")
pad13.Profile = sketch14
pad13.Length = 440

# Sketch on XY plane
sketch15 = body13.newObject("Sketcher::SketchObject", "Sketch014")
sketch15.AttachmentSupport = (doc.getObject("XY_Plane012"), [""])
sketch15.MapMode = "FlatFace"
sketch15.AttachmentOffset = App.Placement(V(0, 0, 440), App.Rotation())
sketch15.addGeometry([
    Part.LineSegment(V(1175, 1481, 0), V(845, 1481, 0)),  # 0
    Part.LineSegment(V(845, 1481, 0), V(845, 1431, 0)),  # 1
    Part.LineSegment(V(845, 1431, 0), V(795, 1431, 0)),  # 2
    Part.LineSegment(V(795, 1431, 0), V(795, 1201, 0)),  # 3
    Part.LineSegment(V(795, 1201, 0), V(845, 1201, 0)),  # 4
    Part.LineSegment(V(845, 1201, 0), V(845, 1151, 0)),  # 5
    Part.LineSegment(V(845, 1151, 0), V(1175, 1151, 0)),  # 6
    Part.LineSegment(V(1175, 1151, 0), V(1175, 1201, 0)),  # 7
    Part.LineSegment(V(1175, 1201, 0), V(1225, 1201, 0)),  # 8
    Part.LineSegment(V(1225, 1201, 0), V(1225, 1431, 0)),  # 9
    Part.LineSegment(V(1225, 1431, 0), V(1175, 1431, 0)),  # 10
    Part.LineSegment(V(1175, 1431, 0), V(1175, 1481, 0)),  # 11
], False)
sketch15.addConstraint([
    Sketcher.Constraint("Coincident", 0, 2, 1, 1),
    Sketcher.Constraint("Coincident", 1, 2, 2, 1),
    Sketcher.Constraint("Coincident", 2, 2, 3, 1),
    Sketcher.Constraint("Coincident", 3, 2, 4, 1),
    Sketcher.Constraint("Coincident", 4, 2, 5, 1),
    Sketcher.Constraint("Coincident", 5, 2, 6, 1),
    Sketcher.Constraint("Coincident", 6, 2, 7, 1),
    Sketcher.Constraint("Coincident", 7, 2, 8, 1),
    Sketcher.Constraint("Coincident", 8, 2, 9, 1),
    Sketcher.Constraint("Coincident", 9, 2, 10, 1),
    Sketcher.Constraint("Coincident", 10, 2, 11, 1),
    Sketcher.Constraint("Coincident", 11, 2, 0, 1),
    Sketcher.Constraint("Horizontal", 0),
    Sketcher.Constraint("Vertical", 1),
    Sketcher.Constraint("Horizontal", 2),
    Sketcher.Constraint("Vertical", 3),
    Sketcher.Constraint("Horizontal", 4),
    Sketcher.Constraint("Vertical", 5),
    Sketcher.Constraint("Horizontal", 6),
    Sketcher.Constraint("Vertical", 7),
    Sketcher.Constraint("Horizontal", 8),
    Sketcher.Constraint("Vertical", 9),
    Sketcher.Constraint("Horizontal", 10),
    Sketcher.Constraint("Vertical", 11),
    Sketcher.Constraint("Horizontal", 4, 2, 7, 2),
    Sketcher.Constraint("Horizontal", 2, 2, 9, 2),
    Sketcher.Constraint("Vertical", 1, 2, 4, 2),
    Sketcher.Constraint("Vertical", 7, 2, 10, 2),
    Sketcher.Constraint("Equal", 4, 8),
    Sketcher.Constraint("Equal", 10, 1),
    Sketcher.Constraint("Equal", 1, 5),
    Sketcher.Constraint("DistanceX", 0, 2, 0, 1, Q("330 mm")),
    Sketcher.Constraint("DistanceX", 2, 2, 2, 1, Q("50 mm")),
    Sketcher.Constraint("DistanceY", 3, 2, 3, 1, Q("230 mm")),
    Sketcher.Constraint("DistanceY", -1, 1, 0, 2, Q("1480.770068 mm")),
    Sketcher.Constraint("DistanceX", -1, 1, 0, 2, Q("845.257874 mm")),
])
pocket2 = body13.newObject("PartDesign::Pocket", "Pocket001")
pocket2.Profile = sketch15
pocket2.Length = 440

# Sketch on XY plane
sketch16 = body13.newObject("Sketcher::SketchObject", "Sketch015")
sketch16.AttachmentSupport = (doc.getObject("XY_Plane012"), [""])
sketch16.MapMode = "FlatFace"
sketch16.AttachmentOffset = App.Placement(V(0, 0, 440), App.Rotation())
sketch16.addGeometry([
    Part.LineSegment(V(795, 1481, 0), V(795, 1151, 0)),
    Part.LineSegment(V(795, 1151, 0), V(1225, 1151, 0)),
    Part.LineSegment(V(1225, 1151, 0), V(1225, 1481, 0)),
    Part.LineSegment(V(1225, 1481, 0), V(795, 1481, 0)),
], False)
sketch16.addConstraint([
    Sketcher.Constraint("Coincident", 0, 2, 1, 1),
    Sketcher.Constraint("Coincident", 1, 2, 2, 1),
    Sketcher.Constraint("Coincident", 2, 2, 3, 1),
    Sketcher.Constraint("Coincident", 3, 2, 0, 1),
    Sketcher.Constraint("Vertical", 0),
    Sketcher.Constraint("Horizontal", 1),
    Sketcher.Constraint("Vertical", 2),
    Sketcher.Constraint("Horizontal", 3),
    Sketcher.Constraint("DistanceX", 1, 1, 1, 2, Q("430 mm")),
    Sketcher.Constraint("DistanceY", 0, 2, 0, 1, Q("330 mm")),
    Sketcher.Constraint("DistanceY", -1, 1, 0, 2, Q("1150.770068 mm")),
    Sketcher.Constraint("DistanceX", -1, 1, 0, 2, Q("795.257874 mm")),
])
pad14 = body13.newObject("PartDesign::Pad", "Pad013")
pad14.Profile = sketch16
pad14.Length = 40

doc.recompute()
